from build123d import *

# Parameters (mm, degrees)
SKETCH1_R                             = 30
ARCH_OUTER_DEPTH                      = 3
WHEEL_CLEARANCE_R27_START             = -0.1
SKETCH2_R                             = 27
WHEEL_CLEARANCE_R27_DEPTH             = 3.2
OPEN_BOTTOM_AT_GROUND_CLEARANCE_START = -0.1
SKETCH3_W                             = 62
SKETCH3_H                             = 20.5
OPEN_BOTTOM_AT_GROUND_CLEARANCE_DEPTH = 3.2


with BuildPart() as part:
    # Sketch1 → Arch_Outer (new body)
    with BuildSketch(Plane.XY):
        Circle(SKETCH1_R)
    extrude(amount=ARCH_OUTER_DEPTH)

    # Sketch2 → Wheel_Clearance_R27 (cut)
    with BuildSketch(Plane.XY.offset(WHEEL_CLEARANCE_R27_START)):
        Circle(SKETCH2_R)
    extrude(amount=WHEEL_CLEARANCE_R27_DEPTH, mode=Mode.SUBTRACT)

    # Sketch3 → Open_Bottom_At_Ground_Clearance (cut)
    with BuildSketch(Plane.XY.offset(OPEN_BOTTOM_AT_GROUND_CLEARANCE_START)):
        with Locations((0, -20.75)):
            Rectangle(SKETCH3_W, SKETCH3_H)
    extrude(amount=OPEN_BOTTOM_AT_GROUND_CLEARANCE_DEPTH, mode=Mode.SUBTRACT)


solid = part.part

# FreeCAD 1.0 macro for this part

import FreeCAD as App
import Part
import Sketcher
Q = App.Units.Quantity


def add_polygon(sketch, points):
    """Adds a closed chain of lines whose ends are joined by coincident constraints."""
    first, n = sketch.GeometryCount, len(points)
    for a, b in zip(points, points[1:] + points[:1]):
        sketch.addGeometry(Part.LineSegment(App.Vector(*a, 0), App.Vector(*b, 0)), False)
    for i in range(n):
        sketch.addConstraint(Sketcher.Constraint("Coincident", first + i, 2, first + (i + 1) % n, 1))

doc = App.newDocument("Part")
params = doc.addObject("Spreadsheet::Sheet", "Params")
for row, (alias, value) in enumerate([
    ("sketch1_diameter", "60 mm"),
    ("pad1_length", "3 mm"),
    ("sketch2_diameter", "54 mm"),
    ("pocket1_length", "3.2 mm"),
    ("sketch3_width", "62 mm"),
    ("sketch3_height", "20.5 mm"),
    ("pocket2_length", "3.2 mm"),
], start=1):
    params.set(f"A{row}", alias)
    params.set(f"B{row}", "=" + value)
    params.setAlias(f"B{row}", alias)

body = doc.addObject("PartDesign::Body", "Body")

# Sketch on XY plane
sketch1 = doc.addObject("Sketcher::SketchObject", "Sketch")
body.addObject(sketch1)
sketch1.AttachmentSupport = (doc.XY_Plane, [""])
sketch1.MapMode = "FlatFace"
sketch1.addGeometry(Part.Circle(App.Vector(0, 0, 0), App.Vector(0, 0, 1), 30), False)
sketch1.addConstraint([
    Sketcher.Constraint("Coincident", 0, 3, -1, 1),
    Sketcher.Constraint("Diameter", 0, Q("60 mm")),
])
sketch1.setExpression("Constraints[1]", "Params.sketch1_diameter")
pad1 = doc.addObject("PartDesign::Pad", "Pad")
body.addObject(pad1)
pad1.Profile = sketch1
pad1.setExpression("Length", "Params.pad1_length")

# Sketch on XY plane
sketch2 = doc.addObject("Sketcher::SketchObject", "Sketch001")
body.addObject(sketch2)
sketch2.AttachmentSupport = (doc.XY_Plane, [""])
sketch2.MapMode = "FlatFace"
sketch2.AttachmentOffset = App.Placement(App.Vector(0, 0, -0.1), App.Rotation())
sketch2.addGeometry(Part.Circle(App.Vector(0, 0, 0), App.Vector(0, 0, 1), 27), False)
sketch2.addConstraint([
    Sketcher.Constraint("Coincident", 0, 3, -1, 1),
    Sketcher.Constraint("Diameter", 0, Q("54 mm")),
])
sketch2.setExpression("Constraints[1]", "Params.sketch2_diameter")
pocket1 = doc.addObject("PartDesign::Pocket", "Pocket")
body.addObject(pocket1)
pocket1.Profile = sketch2
pocket1.setExpression("Length", "Params.pocket1_length")
pocket1.Reversed = True

# Sketch on XY plane
sketch3 = doc.addObject("Sketcher::SketchObject", "Sketch002")
body.addObject(sketch3)
sketch3.AttachmentSupport = (doc.XY_Plane, [""])
sketch3.MapMode = "FlatFace"
sketch3.AttachmentOffset = App.Placement(App.Vector(0, 0, -0.1), App.Rotation())
add_polygon(sketch3, [(-31, -10.5), (-31, -31), (31, -31), (31, -10.5)])  # lines 0-3
sketch3.addConstraint([
    Sketcher.Constraint("Vertical", 0),
    Sketcher.Constraint("Horizontal", 1),
    Sketcher.Constraint("Vertical", 2),
    Sketcher.Constraint("Horizontal", 3),
    Sketcher.Constraint("DistanceX", 1, 1, 1, 2, Q("62 mm")),
    Sketcher.Constraint("DistanceY", 0, 2, 0, 1, Q("20.5 mm")),
    Sketcher.Constraint("DistanceX", 0, 2, -1, 1, Q("31 mm")),
    Sketcher.Constraint("DistanceY", 0, 2, -1, 1, Q("31 mm")),
])
sketch3.setExpression("Constraints[8]", "Params.sketch3_width")
sketch3.setExpression("Constraints[9]", "Params.sketch3_height")
pocket2 = doc.addObject("PartDesign::Pocket", "Pocket001")
body.addObject(pocket2)
pocket2.Profile = sketch3
pocket2.setExpression("Length", "Params.pocket2_length")
pocket2.Reversed = True

doc.recompute()
